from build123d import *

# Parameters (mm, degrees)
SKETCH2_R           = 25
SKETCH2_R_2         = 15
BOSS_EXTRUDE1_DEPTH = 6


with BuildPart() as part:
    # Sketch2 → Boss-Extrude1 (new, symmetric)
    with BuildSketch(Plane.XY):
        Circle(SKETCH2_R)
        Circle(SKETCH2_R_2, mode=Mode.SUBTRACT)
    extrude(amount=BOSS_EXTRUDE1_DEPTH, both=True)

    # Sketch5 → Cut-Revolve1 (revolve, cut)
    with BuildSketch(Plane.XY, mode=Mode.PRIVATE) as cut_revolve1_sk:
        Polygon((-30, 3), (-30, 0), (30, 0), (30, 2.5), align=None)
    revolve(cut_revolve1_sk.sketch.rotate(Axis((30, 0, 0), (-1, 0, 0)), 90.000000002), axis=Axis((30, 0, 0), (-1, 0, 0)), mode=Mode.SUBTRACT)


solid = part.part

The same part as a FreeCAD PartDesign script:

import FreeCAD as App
import Part
import Sketcher

V = App.Vector


def add_polygon(sketch, points):
    """Adds a closed chain of lines whose ends are joined by coincident constraints."""
    first, n = sketch.GeometryCount, len(points)
    for a, b in zip(points, points[1:] + points[:1]):
        sketch.addGeometry(Part.LineSegment(App.Vector(*a, 0), App.Vector(*b, 0)), False)
    for i in range(n):
        sketch.addConstraint(Sketcher.Constraint("Coincident", first + i, 2, first + (i + 1) % n, 1))

doc = App.newDocument("Part")
body = doc.addObject("PartDesign::Body", "Body")

sketch1 = doc.addObject("Sketcher::SketchObject", "Sketch")
body.addObject(sketch1)
sketch1.AttachmentSupport = (doc.XY_Plane, [""])
sketch1.MapMode = "FlatFace"
sketch1.addGeometry(Part.Circle(V(0, 0, 0), V(0, 0, 1), 25), False)
sketch1.addGeometry(Part.Circle(V(0, 0, 0), V(0, 0, 1), 15), False)
sketch1.addConstraint(Sketcher.Constraint("Coincident", 0, 3, -1, 1))
sketch1.addConstraint(Sketcher.Constraint("Coincident", 1, 3, -1, 1))
sketch1.addConstraint(Sketcher.Constraint("Diameter", 0, 50.0))
sketch1.addConstraint(Sketcher.Constraint("Diameter", 1, 30.0))
pad1 = doc.addObject("PartDesign::Pad", "Pad")
body.addObject(pad1)
pad1.Profile = sketch1
pad1.Length = 12
pad1.Midplane = True

sketch2 = doc.addObject("Sketcher::SketchObject", "Sketch001")
body.addObject(sketch2)
sketch2.AttachmentSupport = (doc.XY_Plane, [""])
sketch2.MapMode = "FlatFace"
add_polygon(sketch2, [(-30, 3), (-30, 0), (30, 0), (30, 2.5)])
sketch2.addConstraint(Sketcher.Constraint("Vertical", 0))
sketch2.addConstraint(Sketcher.Constraint("Horizontal", 1))
sketch2.addConstraint(Sketcher.Constraint("Vertical", 2))
sketch2.addConstraint(Sketcher.Constraint("Symmetric", 0, 2, 1, 2, -1, 1))
sketch2.addConstraint(Sketcher.Constraint("DistanceX", 1, 1, 1, 2, 60.0))
sketch2.addConstraint(Sketcher.Constraint("DistanceY", 0, 2, 0, 1, 3.0))
sketch2.addConstraint(Sketcher.Constraint("DistanceY", 2, 1, 2, 2, 2.5))
groove = doc.addObject("PartDesign::Groove", "Groove")
body.addObject(groove)
groove.Profile = sketch2
groove.ReferenceAxis = (sketch2, ["H_Axis"])
groove.Angle = 360

doc.recompute()
